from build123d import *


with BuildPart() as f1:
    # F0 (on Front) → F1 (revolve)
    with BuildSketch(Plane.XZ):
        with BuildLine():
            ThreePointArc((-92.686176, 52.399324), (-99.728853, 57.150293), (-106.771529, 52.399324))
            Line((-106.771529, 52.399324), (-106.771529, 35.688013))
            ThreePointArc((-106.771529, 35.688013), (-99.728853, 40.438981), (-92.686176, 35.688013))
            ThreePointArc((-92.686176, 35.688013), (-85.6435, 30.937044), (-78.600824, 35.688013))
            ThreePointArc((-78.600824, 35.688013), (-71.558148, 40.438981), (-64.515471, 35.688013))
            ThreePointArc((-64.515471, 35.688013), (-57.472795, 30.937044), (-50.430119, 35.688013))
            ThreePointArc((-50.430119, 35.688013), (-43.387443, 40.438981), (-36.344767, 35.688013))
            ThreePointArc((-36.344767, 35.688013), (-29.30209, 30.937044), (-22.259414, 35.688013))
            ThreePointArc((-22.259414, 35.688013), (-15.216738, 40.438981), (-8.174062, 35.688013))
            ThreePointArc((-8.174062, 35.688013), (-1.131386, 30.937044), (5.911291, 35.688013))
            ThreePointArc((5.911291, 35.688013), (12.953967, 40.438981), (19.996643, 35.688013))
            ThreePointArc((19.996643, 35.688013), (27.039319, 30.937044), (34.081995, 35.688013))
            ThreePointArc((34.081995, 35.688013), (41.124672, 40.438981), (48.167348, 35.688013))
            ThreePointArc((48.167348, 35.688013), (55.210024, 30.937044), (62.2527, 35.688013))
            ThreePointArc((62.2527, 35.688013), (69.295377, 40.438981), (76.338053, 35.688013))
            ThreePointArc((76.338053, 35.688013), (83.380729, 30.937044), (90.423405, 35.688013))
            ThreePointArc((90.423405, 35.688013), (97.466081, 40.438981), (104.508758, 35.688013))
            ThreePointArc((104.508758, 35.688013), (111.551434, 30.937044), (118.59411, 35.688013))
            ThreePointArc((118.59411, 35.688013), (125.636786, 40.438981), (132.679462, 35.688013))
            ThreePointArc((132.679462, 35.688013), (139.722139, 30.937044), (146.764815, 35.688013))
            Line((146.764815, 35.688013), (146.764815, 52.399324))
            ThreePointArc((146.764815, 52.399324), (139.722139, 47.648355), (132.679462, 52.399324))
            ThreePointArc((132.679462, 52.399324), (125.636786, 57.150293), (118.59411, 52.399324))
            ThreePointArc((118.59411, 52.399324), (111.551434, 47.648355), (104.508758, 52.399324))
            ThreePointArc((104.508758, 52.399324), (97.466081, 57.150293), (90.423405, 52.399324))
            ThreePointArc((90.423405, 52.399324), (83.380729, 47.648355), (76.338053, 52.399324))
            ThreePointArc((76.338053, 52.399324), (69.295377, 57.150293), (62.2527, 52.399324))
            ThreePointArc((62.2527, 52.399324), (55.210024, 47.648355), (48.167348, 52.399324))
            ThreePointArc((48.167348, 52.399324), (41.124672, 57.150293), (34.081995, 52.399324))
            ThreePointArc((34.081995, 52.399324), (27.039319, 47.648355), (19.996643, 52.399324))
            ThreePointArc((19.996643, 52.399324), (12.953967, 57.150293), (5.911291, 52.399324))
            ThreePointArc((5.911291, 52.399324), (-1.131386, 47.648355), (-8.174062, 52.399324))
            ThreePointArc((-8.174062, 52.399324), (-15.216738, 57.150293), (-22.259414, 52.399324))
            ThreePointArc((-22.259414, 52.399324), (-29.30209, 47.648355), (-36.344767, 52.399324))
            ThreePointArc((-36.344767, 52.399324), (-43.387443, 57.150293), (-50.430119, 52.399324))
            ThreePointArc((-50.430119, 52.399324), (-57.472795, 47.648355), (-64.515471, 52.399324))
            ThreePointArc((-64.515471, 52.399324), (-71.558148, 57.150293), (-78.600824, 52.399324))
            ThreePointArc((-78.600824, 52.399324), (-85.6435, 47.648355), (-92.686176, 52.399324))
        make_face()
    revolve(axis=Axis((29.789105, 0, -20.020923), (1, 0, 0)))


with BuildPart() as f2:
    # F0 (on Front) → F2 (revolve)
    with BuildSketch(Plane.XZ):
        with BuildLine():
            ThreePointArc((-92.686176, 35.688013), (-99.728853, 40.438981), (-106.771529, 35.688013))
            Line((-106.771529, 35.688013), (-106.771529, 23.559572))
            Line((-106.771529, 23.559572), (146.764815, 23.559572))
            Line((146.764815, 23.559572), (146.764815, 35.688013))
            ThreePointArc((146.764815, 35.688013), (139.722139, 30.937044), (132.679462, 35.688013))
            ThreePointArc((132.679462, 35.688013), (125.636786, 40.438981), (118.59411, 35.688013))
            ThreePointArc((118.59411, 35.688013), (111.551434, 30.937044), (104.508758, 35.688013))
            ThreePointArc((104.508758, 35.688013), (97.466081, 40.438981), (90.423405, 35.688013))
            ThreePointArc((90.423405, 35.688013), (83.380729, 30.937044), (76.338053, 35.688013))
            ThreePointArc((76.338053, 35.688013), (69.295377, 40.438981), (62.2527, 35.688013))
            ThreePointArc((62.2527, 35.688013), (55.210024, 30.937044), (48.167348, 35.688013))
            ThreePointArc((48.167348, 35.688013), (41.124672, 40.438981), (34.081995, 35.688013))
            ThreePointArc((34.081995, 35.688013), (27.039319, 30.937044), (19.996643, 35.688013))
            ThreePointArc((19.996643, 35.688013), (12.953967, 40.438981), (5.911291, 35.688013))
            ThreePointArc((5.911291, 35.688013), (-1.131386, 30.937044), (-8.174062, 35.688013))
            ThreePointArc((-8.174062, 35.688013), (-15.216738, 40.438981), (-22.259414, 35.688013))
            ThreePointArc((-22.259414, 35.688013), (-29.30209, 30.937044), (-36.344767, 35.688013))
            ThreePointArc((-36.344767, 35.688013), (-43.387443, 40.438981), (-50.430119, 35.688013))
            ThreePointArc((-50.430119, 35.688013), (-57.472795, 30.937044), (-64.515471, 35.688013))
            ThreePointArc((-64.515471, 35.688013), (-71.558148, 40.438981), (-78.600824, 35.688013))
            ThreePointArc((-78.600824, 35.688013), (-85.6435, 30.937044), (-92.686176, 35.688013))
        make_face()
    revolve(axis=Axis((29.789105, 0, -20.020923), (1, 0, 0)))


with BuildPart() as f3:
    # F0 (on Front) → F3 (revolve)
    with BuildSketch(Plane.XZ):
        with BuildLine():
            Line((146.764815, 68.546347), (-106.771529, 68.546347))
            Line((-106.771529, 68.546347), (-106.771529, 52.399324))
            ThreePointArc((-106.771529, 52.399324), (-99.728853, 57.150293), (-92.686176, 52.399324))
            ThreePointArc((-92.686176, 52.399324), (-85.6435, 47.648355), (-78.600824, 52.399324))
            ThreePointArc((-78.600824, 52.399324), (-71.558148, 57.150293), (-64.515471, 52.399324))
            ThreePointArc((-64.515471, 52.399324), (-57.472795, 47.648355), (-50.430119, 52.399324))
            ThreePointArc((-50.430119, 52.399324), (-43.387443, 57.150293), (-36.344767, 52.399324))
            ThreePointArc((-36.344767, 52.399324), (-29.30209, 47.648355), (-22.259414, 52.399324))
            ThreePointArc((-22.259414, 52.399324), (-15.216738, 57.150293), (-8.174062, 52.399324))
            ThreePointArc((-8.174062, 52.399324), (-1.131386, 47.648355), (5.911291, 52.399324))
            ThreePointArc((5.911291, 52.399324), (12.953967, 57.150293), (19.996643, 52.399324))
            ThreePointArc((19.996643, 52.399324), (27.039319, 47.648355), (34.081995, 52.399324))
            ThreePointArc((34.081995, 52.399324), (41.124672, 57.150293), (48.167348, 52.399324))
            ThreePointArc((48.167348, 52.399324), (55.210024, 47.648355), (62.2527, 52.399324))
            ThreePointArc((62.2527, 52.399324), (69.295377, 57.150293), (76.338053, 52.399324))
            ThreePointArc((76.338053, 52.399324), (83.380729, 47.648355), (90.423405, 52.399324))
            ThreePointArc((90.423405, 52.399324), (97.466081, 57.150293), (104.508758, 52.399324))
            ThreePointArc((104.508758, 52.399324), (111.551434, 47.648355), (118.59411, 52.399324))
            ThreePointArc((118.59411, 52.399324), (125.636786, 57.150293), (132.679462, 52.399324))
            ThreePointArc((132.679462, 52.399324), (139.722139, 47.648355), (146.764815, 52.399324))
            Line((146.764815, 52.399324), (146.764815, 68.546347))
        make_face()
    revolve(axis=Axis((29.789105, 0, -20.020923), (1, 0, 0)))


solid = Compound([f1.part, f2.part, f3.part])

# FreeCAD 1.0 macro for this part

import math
import FreeCAD as App
import Part
import Sketcher
from FreeCAD import Vector
Q = App.Units.Quantity

doc = App.newDocument("Part")
body = doc.addObject("PartDesign::Body", "Body")

# Sketch on XZ plane
sketch1 = doc.addObject("Sketcher::SketchObject", "Sketch")
body.addObject(sketch1)
sketch1.AttachmentSupport = (doc.XZ_Plane, [""])
sketch1.MapMode = "FlatFace"
sketch1.addGeometry([
    Part.ArcOfCircle(Part.Circle(Vector(-100, 50, 0), Vector(0, 0, 1), 8), math.radians(22), math.radians(158)),  # 0
    Part.LineSegment(Vector(-107, 52, 0), Vector(-107, 36, 0)),  # 1
    Part.ArcOfCircle(Part.Circle(Vector(-100, 33, 0), Vector(0, 0, 1), 8), math.radians(22), math.radians(158)),  # 2
    Part.ArcOfCircle(Part.Circle(Vector(-86, 39, 0), Vector(0, 0, 1), 8), math.radians(-158), math.radians(-22)),  # 3
    Part.ArcOfCircle(Part.Circle(Vector(-72, 33, 0), Vector(0, 0, 1), 8), math.radians(22), math.radians(158)),  # 4
    Part.ArcOfCircle(Part.Circle(Vector(-57, 39, 0), Vector(0, 0, 1), 8), math.radians(-158), math.radians(-22)),  # 5
    Part.ArcOfCircle(Part.Circle(Vector(-43, 33, 0), Vector(0, 0, 1), 8), math.radians(22), math.radians(158)),  # 6
    Part.ArcOfCircle(Part.Circle(Vector(-29, 39, 0), Vector(0, 0, 1), 8), math.radians(-158), math.radians(-22)),  # 7
    Part.ArcOfCircle(Part.Circle(Vector(-15, 33, 0), Vector(0, 0, 1), 8), math.radians(22), math.radians(158)),  # 8
    Part.ArcOfCircle(Part.Circle(Vector(-1, 39, 0), Vector(0, 0, 1), 8), math.radians(-158), math.radians(-22)),  # 9
    Part.ArcOfCircle(Part.Circle(Vector(13, 33, 0), Vector(0, 0, 1), 8), math.radians(22), math.radians(158)),  # 10
    Part.ArcOfCircle(Part.Circle(Vector(27, 39, 0), Vector(0, 0, 1), 8), math.radians(-158), math.radians(-22)),  # 11
    Part.ArcOfCircle(Part.Circle(Vector(41, 33, 0), Vector(0, 0, 1), 8), math.radians(22), math.radians(158)),  # 12
    Part.ArcOfCircle(Part.Circle(Vector(55, 39, 0), Vector(0, 0, 1), 8), math.radians(-158), math.radians(-22)),  # 13
    Part.ArcOfCircle(Part.Circle(Vector(69, 33, 0), Vector(0, 0, 1), 8), math.radians(22), math.radians(158)),  # 14
    Part.ArcOfCircle(Part.Circle(Vector(83, 39, 0), Vector(0, 0, 1), 8), math.radians(-158), math.radians(-22)),  # 15
    Part.ArcOfCircle(Part.Circle(Vector(97, 33, 0), Vector(0, 0, 1), 8), math.radians(22), math.radians(158)),  # 16
    Part.ArcOfCircle(Part.Circle(Vector(112, 39, 0), Vector(0, 0, 1), 8), math.radians(-158), math.radians(-22)),  # 17
    Part.ArcOfCircle(Part.Circle(Vector(126, 33, 0), Vector(0, 0, 1), 8), math.radians(22), math.radians(158)),  # 18
    Part.ArcOfCircle(Part.Circle(Vector(140, 39, 0), Vector(0, 0, 1), 8), math.radians(-158), math.radians(-22)),  # 19
    Part.LineSegment(Vector(147, 36, 0), Vector(147, 52, 0)),  # 20
    Part.ArcOfCircle(Part.Circle(Vector(140, 55, 0), Vector(0, 0, 1), 8), math.radians(-158), math.radians(-22)),  # 21
    Part.ArcOfCircle(Part.Circle(Vector(126, 50, 0), Vector(0, 0, 1), 8), math.radians(22), math.radians(158)),  # 22
    Part.ArcOfCircle(Part.Circle(Vector(112, 55, 0), Vector(0, 0, 1), 8), math.radians(-158), math.radians(-22)),  # 23
    Part.ArcOfCircle(Part.Circle(Vector(97, 50, 0), Vector(0, 0, 1), 8), math.radians(22), math.radians(158)),  # 24
    Part.ArcOfCircle(Part.Circle(Vector(83, 55, 0), Vector(0, 0, 1), 8), math.radians(-158), math.radians(-22)),  # 25
    Part.ArcOfCircle(Part.Circle(Vector(69, 50, 0), Vector(0, 0, 1), 8), math.radians(22), math.radians(158)),  # 26
    Part.ArcOfCircle(Part.Circle(Vector(55, 55, 0), Vector(0, 0, 1), 8), math.radians(-158), math.radians(-22)),  # 27
    Part.ArcOfCircle(Part.Circle(Vector(41, 50, 0), Vector(0, 0, 1), 8), math.radians(22), math.radians(158)),  # 28
    Part.ArcOfCircle(Part.Circle(Vector(27, 55, 0), Vector(0, 0, 1), 8), math.radians(-158), math.radians(-22)),  # 29
    Part.ArcOfCircle(Part.Circle(Vector(13, 50, 0), Vector(0, 0, 1), 8), math.radians(22), math.radians(158)),  # 30
    Part.ArcOfCircle(Part.Circle(Vector(-1, 55, 0), Vector(0, 0, 1), 8), math.radians(-158), math.radians(-22)),  # 31
    Part.ArcOfCircle(Part.Circle(Vector(-15, 50, 0), Vector(0, 0, 1), 8), math.radians(22), math.radians(158)),  # 32
    Part.ArcOfCircle(Part.Circle(Vector(-29, 55, 0), Vector(0, 0, 1), 8), math.radians(-158), math.radians(-22)),  # 33
    Part.ArcOfCircle(Part.Circle(Vector(-43, 50, 0), Vector(0, 0, 1), 8), math.radians(22), math.radians(158)),  # 34
    Part.ArcOfCircle(Part.Circle(Vector(-57, 55, 0), Vector(0, 0, 1), 8), math.radians(-158), math.radians(-22)),  # 35
    Part.ArcOfCircle(Part.Circle(Vector(-72, 50, 0), Vector(0, 0, 1), 8), math.radians(22), math.radians(158)),  # 36
    Part.ArcOfCircle(Part.Circle(Vector(-86, 55, 0), Vector(0, 0, 1), 8), math.radians(-158), math.radians(-22)),  # 37
], False)
sketch1.addGeometry(Part.LineSegment(Vector(-107, -20, 0), Vector(147, -20, 0)), True)  # axis
sketch1.addConstraint([
    Sketcher.Constraint("Coincident", 0, 2, 1, 1),
    Sketcher.Constraint("Coincident", 1, 2, 2, 2),
    Sketcher.Constraint("Tangent", 2, 1, 3, 1),
    Sketcher.Constraint("Tangent", 3, 2, 4, 2),
    Sketcher.Constraint("Tangent", 4, 1, 5, 1),
    Sketcher.Constraint("Tangent", 5, 2, 6, 2),
    Sketcher.Constraint("Tangent", 6, 1, 7, 1),
    Sketcher.Constraint("Tangent", 7, 2, 8, 2),
    Sketcher.Constraint("Tangent", 8, 1, 9, 1),
    Sketcher.Constraint("Tangent", 9, 2, 10, 2),
    Sketcher.Constraint("Tangent", 10, 1, 11, 1),
    Sketcher.Constraint("Tangent", 11, 2, 12, 2),
    Sketcher.Constraint("Tangent", 12, 1, 13, 1),
    Sketcher.Constraint("Tangent", 13, 2, 14, 2),
    Sketcher.Constraint("Tangent", 14, 1, 15, 1),
    Sketcher.Constraint("Tangent", 15, 2, 16, 2),
    Sketcher.Constraint("Tangent", 16, 1, 17, 1),
    Sketcher.Constraint("Tangent", 17, 2, 18, 2),
    Sketcher.Constraint("Tangent", 18, 1, 19, 1),
    Sketcher.Constraint("Coincident", 19, 2, 20, 1),
    Sketcher.Constraint("Coincident", 20, 2, 21, 2),
    Sketcher.Constraint("Tangent", 21, 1, 22, 1),
    Sketcher.Constraint("Tangent", 22, 2, 23, 2),
    Sketcher.Constraint("Tangent", 23, 1, 24, 1),
    Sketcher.Constraint("Tangent", 24, 2, 25, 2),
    Sketcher.Constraint("Tangent", 25, 1, 26, 1),
    Sketcher.Constraint("Tangent", 26, 2, 27, 2),
    Sketcher.Constraint("Tangent", 27, 1, 28, 1),
    Sketcher.Constraint("Tangent", 28, 2, 29, 2),
    Sketcher.Constraint("Tangent", 29, 1, 30, 1),
    Sketcher.Constraint("Tangent", 30, 2, 31, 2),
    Sketcher.Constraint("Tangent", 31, 1, 32, 1),
    Sketcher.Constraint("Tangent", 32, 2, 33, 2),
    Sketcher.Constraint("Tangent", 33, 1, 34, 1),
    Sketcher.Constraint("Tangent", 34, 2, 35, 2),
    Sketcher.Constraint("Tangent", 35, 1, 36, 1),
    Sketcher.Constraint("Tangent", 36, 2, 37, 2),
    Sketcher.Constraint("Tangent", 37, 1, 0, 1),
    Sketcher.Constraint("Vertical", 1),
    Sketcher.Constraint("Vertical", 20),
    Sketcher.Constraint("Horizontal", 38),
    Sketcher.Constraint("Equal", 0, 2),
    Sketcher.Constraint("Equal", 2, 3),
    Sketcher.Constraint("Equal", 3, 4),
    Sketcher.Constraint("Equal", 4, 5),
    Sketcher.Constraint("Equal", 5, 6),
    Sketcher.Constraint("Equal", 6, 7),
    Sketcher.Constraint("Equal", 7, 8),
    Sketcher.Constraint("Equal", 8, 9),
    Sketcher.Constraint("Equal", 9, 10),
    Sketcher.Constraint("Equal", 10, 11),
    Sketcher.Constraint("Equal", 11, 12),
    Sketcher.Constraint("Equal", 12, 13),
    Sketcher.Constraint("Equal", 13, 14),
    Sketcher.Constraint("Equal", 14, 15),
    Sketcher.Constraint("Equal", 15, 16),
    Sketcher.Constraint("Equal", 16, 17),
    Sketcher.Constraint("Equal", 17, 18),
    Sketcher.Constraint("Equal", 18, 19),
    Sketcher.Constraint("Equal", 19, 21),
    Sketcher.Constraint("Equal", 21, 22),
    Sketcher.Constraint("Equal", 22, 23),
    Sketcher.Constraint("Equal", 23, 24),
    Sketcher.Constraint("Equal", 24, 25),
    Sketcher.Constraint("Equal", 25, 26),
    Sketcher.Constraint("Equal", 26, 27),
    Sketcher.Constraint("Equal", 27, 28),
    Sketcher.Constraint("Equal", 28, 29),
    Sketcher.Constraint("Equal", 29, 30),
    Sketcher.Constraint("Equal", 30, 31),
    Sketcher.Constraint("Equal", 31, 32),
    Sketcher.Constraint("Equal", 32, 33),
    Sketcher.Constraint("Equal", 33, 34),
    Sketcher.Constraint("Equal", 34, 35),
    Sketcher.Constraint("Equal", 35, 36),
    Sketcher.Constraint("Equal", 36, 37),
    Sketcher.Constraint("Horizontal", 2, 3, 4, 3),
    Sketcher.Constraint("Horizontal", 3, 3, 5, 3),
    Sketcher.Constraint("Horizontal", 4, 3, 6, 3),
    Sketcher.Constraint("Horizontal", 5, 3, 7, 3),
    Sketcher.Constraint("Horizontal", 6, 3, 8, 3),
    Sketcher.Constraint("Horizontal", 7, 3, 9, 3),
    Sketcher.Constraint("Horizontal", 8, 3, 10, 3),
    Sketcher.Constraint("Horizontal", 9, 3, 11, 3),
    Sketcher.Constraint("Horizontal", 10, 3, 12, 3),
    Sketcher.Constraint("Horizontal", 11, 3, 13, 3),
    Sketcher.Constraint("Horizontal", 12, 3, 14, 3),
    Sketcher.Constraint("Horizontal", 13, 3, 15, 3),
    Sketcher.Constraint("Horizontal", 14, 3, 16, 3),
    Sketcher.Constraint("Horizontal", 15, 3, 17, 3),
    Sketcher.Constraint("Horizontal", 16, 3, 18, 3),
    Sketcher.Constraint("Horizontal", 17, 3, 19, 3),
    Sketcher.Constraint("Horizontal", 0, 3, 22, 3),
    Sketcher.Constraint("Horizontal", 21, 3, 23, 3),
    Sketcher.Constraint("Horizontal", 22, 3, 24, 3),
    Sketcher.Constraint("Horizontal", 23, 3, 25, 3),
    Sketcher.Constraint("Horizontal", 24, 3, 26, 3),
    Sketcher.Constraint("Horizontal", 25, 3, 27, 3),
    Sketcher.Constraint("Horizontal", 26, 3, 28, 3),
    Sketcher.Constraint("Horizontal", 27, 3, 29, 3),
    Sketcher.Constraint("Horizontal", 28, 3, 30, 3),
    Sketcher.Constraint("Horizontal", 29, 3, 31, 3),
    Sketcher.Constraint("Horizontal", 30, 3, 32, 3),
    Sketcher.Constraint("Horizontal", 31, 3, 33, 3),
    Sketcher.Constraint("Horizontal", 32, 3, 34, 3),
    Sketcher.Constraint("Horizontal", 33, 3, 35, 3),
    Sketcher.Constraint("Horizontal", 34, 3, 36, 3),
    Sketcher.Constraint("Horizontal", 35, 3, 37, 3),
    Sketcher.Constraint("Horizontal", 1, 2, 2, 1),
    Sketcher.Constraint("Horizontal", 18, 1, 19, 2),
    Sketcher.Constraint("Horizontal", 0, 2, 20, 2),
    Sketcher.Constraint("Horizontal", 20, 2, 21, 1),
    Sketcher.Constraint("Vertical", 1, 2, 38, 1),
    Sketcher.Constraint("Vertical", 20, 2, 38, 2),
    Sketcher.Constraint("Radius", 2, Q("7.595398 mm")),
    Sketcher.Constraint("DistanceY", 1, 2, 1, 1, Q("16.711311 mm")),
    Sketcher.Constraint("DistanceX", 3, 3, -1, 1, Q("85.6435 mm")),
    Sketcher.Constraint("DistanceX", -1, 1, 13, 2, Q("62.2527 mm")),
    Sketcher.Constraint("DistanceY", -1, 1, 3, 3, Q("38.532441 mm")),
    Sketcher.Constraint("DistanceY", 38, 1, -1, 1, Q("20.020923 mm")),
])
revolution = doc.addObject("PartDesign::Revolution", "Revolution")
body.addObject(revolution)
revolution.Profile = sketch1
revolution.ReferenceAxis = (sketch1, ["Axis0"])
revolution.Angle = 360
body2 = doc.addObject("PartDesign::Body", "Body001")

# Sketch on XZ plane
sketch2 = doc.addObject("Sketcher::SketchObject", "Sketch001")
body2.addObject(sketch2)
sketch2.AttachmentSupport = (doc.getObject("XZ_Plane001"), [""])
sketch2.MapMode = "FlatFace"
sketch2.addGeometry([
    Part.ArcOfCircle(Part.Circle(Vector(-100, 33, 0), Vector(0, 0, 1), 8), math.radians(22), math.radians(158)),  # 0
    Part.LineSegment(Vector(-107, 36, 0), Vector(-107, 24, 0)),  # 1
    Part.LineSegment(Vector(-107, 24, 0), Vector(147, 24, 0)),  # 2
    Part.LineSegment(Vector(147, 24, 0), Vector(147, 36, 0)),  # 3
    Part.ArcOfCircle(Part.Circle(Vector(140, 39, 0), Vector(0, 0, 1), 8), math.radians(-158), math.radians(-22)),  # 4
    Part.ArcOfCircle(Part.Circle(Vector(126, 33, 0), Vector(0, 0, 1), 8), math.radians(22), math.radians(158)),  # 5
    Part.ArcOfCircle(Part.Circle(Vector(112, 39, 0), Vector(0, 0, 1), 8), math.radians(-158), math.radians(-22)),  # 6
    Part.ArcOfCircle(Part.Circle(Vector(97, 33, 0), Vector(0, 0, 1), 8), math.radians(22), math.radians(158)),  # 7
    Part.ArcOfCircle(Part.Circle(Vector(83, 39, 0), Vector(0, 0, 1), 8), math.radians(-158), math.radians(-22)),  # 8
    Part.ArcOfCircle(Part.Circle(Vector(69, 33, 0), Vector(0, 0, 1), 8), math.radians(22), math.radians(158)),  # 9
    Part.ArcOfCircle(Part.Circle(Vector(55, 39, 0), Vector(0, 0, 1), 8), math.radians(-158), math.radians(-22)),  # 10
    Part.ArcOfCircle(Part.Circle(Vector(41, 33, 0), Vector(0, 0, 1), 8), math.radians(22), math.radians(158)),  # 11
    Part.ArcOfCircle(Part.Circle(Vector(27, 39, 0), Vector(0, 0, 1), 8), math.radians(-158), math.radians(-22)),  # 12
    Part.ArcOfCircle(Part.Circle(Vector(13, 33, 0), Vector(0, 0, 1), 8), math.radians(22), math.radians(158)),  # 13
    Part.ArcOfCircle(Part.Circle(Vector(-1, 39, 0), Vector(0, 0, 1), 8), math.radians(-158), math.radians(-22)),  # 14
    Part.ArcOfCircle(Part.Circle(Vector(-15, 33, 0), Vector(0, 0, 1), 8), math.radians(22), math.radians(158)),  # 15
    Part.ArcOfCircle(Part.Circle(Vector(-29, 39, 0), Vector(0, 0, 1), 8), math.radians(-158), math.radians(-22)),  # 16
    Part.ArcOfCircle(Part.Circle(Vector(-43, 33, 0), Vector(0, 0, 1), 8), math.radians(22), math.radians(158)),  # 17
    Part.ArcOfCircle(Part.Circle(Vector(-57, 39, 0), Vector(0, 0, 1), 8), math.radians(-158), math.radians(-22)),  # 18
    Part.ArcOfCircle(Part.Circle(Vector(-72, 33, 0), Vector(0, 0, 1), 8), math.radians(22), math.radians(158)),  # 19
    Part.ArcOfCircle(Part.Circle(Vector(-86, 39, 0), Vector(0, 0, 1), 8), math.radians(-158), math.radians(-22)),  # 20
], False)
sketch2.addGeometry(Part.LineSegment(Vector(-107, -20, 0), Vector(147, -20, 0)), True)  # axis
sketch2.addConstraint([
    Sketcher.Constraint("Coincident", 0, 2, 1, 1),
    Sketcher.Constraint("Coincident", 1, 2, 2, 1),
    Sketcher.Constraint("Coincident", 2, 2, 3, 1),
    Sketcher.Constraint("Coincident", 3, 2, 4, 2),
    Sketcher.Constraint("Tangent", 4, 1, 5, 1),
    Sketcher.Constraint("Tangent", 5, 2, 6, 2),
    Sketcher.Constraint("Tangent", 6, 1, 7, 1),
    Sketcher.Constraint("Tangent", 7, 2, 8, 2),
    Sketcher.Constraint("Tangent", 8, 1, 9, 1),
    Sketcher.Constraint("Tangent", 9, 2, 10, 2),
    Sketcher.Constraint("Tangent", 10, 1, 11, 1),
    Sketcher.Constraint("Tangent", 11, 2, 12, 2),
    Sketcher.Constraint("Tangent", 12, 1, 13, 1),
    Sketcher.Constraint("Tangent", 13, 2, 14, 2),
    Sketcher.Constraint("Tangent", 14, 1, 15, 1),
    Sketcher.Constraint("Tangent", 15, 2, 16, 2),
    Sketcher.Constraint("Tangent", 16, 1, 17, 1),
    Sketcher.Constraint("Tangent", 17, 2, 18, 2),
    Sketcher.Constraint("Tangent", 18, 1, 19, 1),
    Sketcher.Constraint("Tangent", 19, 2, 20, 2),
    Sketcher.Constraint("Tangent", 20, 1, 0, 1),
    Sketcher.Constraint("Vertical", 1),
    Sketcher.Constraint("Horizontal", 2),
    Sketcher.Constraint("Vertical", 3),
    Sketcher.Constraint("Horizontal", 21),
    Sketcher.Constraint("Equal", 0, 4),
    Sketcher.Constraint("Equal", 4, 5),
    Sketcher.Constraint("Equal", 5, 6),
    Sketcher.Constraint("Equal", 6, 7),
    Sketcher.Constraint("Equal", 7, 8),
    Sketcher.Constraint("Equal", 8, 9),
    Sketcher.Constraint("Equal", 9, 10),
    Sketcher.Constraint("Equal", 10, 11),
    Sketcher.Constraint("Equal", 11, 12),
    Sketcher.Constraint("Equal", 12, 13),
    Sketcher.Constraint("Equal", 13, 14),
    Sketcher.Constraint("Equal", 14, 15),
    Sketcher.Constraint("Equal", 15, 16),
    Sketcher.Constraint("Equal", 16, 17),
    Sketcher.Constraint("Equal", 17, 18),
    Sketcher.Constraint("Equal", 18, 19),
    Sketcher.Constraint("Equal", 19, 20),
    Sketcher.Constraint("Horizontal", 0, 3, 5, 3),
    Sketcher.Constraint("Horizontal", 4, 3, 6, 3),
    Sketcher.Constraint("Horizontal", 5, 3, 7, 3),
    Sketcher.Constraint("Horizontal", 6, 3, 8, 3),
    Sketcher.Constraint("Horizontal", 7, 3, 9, 3),
    Sketcher.Constraint("Horizontal", 8, 3, 10, 3),
    Sketcher.Constraint("Horizontal", 9, 3, 11, 3),
    Sketcher.Constraint("Horizontal", 10, 3, 12, 3),
    Sketcher.Constraint("Horizontal", 11, 3, 13, 3),
    Sketcher.Constraint("Horizontal", 12, 3, 14, 3),
    Sketcher.Constraint("Horizontal", 13, 3, 15, 3),
    Sketcher.Constraint("Horizontal", 14, 3, 16, 3),
    Sketcher.Constraint("Horizontal", 15, 3, 17, 3),
    Sketcher.Constraint("Horizontal", 16, 3, 18, 3),
    Sketcher.Constraint("Horizontal", 17, 3, 19, 3),
    Sketcher.Constraint("Horizontal", 18, 3, 20, 3),
    Sketcher.Constraint("Horizontal", 0, 2, 3, 2),
    Sketcher.Constraint("Horizontal", 3, 2, 4, 1),
    Sketcher.Constraint("Vertical", 1, 2, 21, 1),
    Sketcher.Constraint("Vertical", 3, 2, 21, 2),
    Sketcher.Constraint("Radius", 0, Q("7.595398 mm")),
    Sketcher.Constraint("DistanceY", 1, 2, 1, 1, Q("12.128441 mm")),
    Sketcher.Constraint("DistanceX", 20, 3, -1, 1, Q("85.6435 mm")),
    Sketcher.Constraint("DistanceX", -1, 1, 9, 2, Q("62.2527 mm")),
    Sketcher.Constraint("DistanceY", -1, 1, 4, 3, Q("38.532442 mm")),
    Sketcher.Constraint("DistanceY", 21, 1, -1, 1, Q("20.020923 mm")),
])
revolution2 = doc.addObject("PartDesign::Revolution", "Revolution001")
body2.addObject(revolution2)
revolution2.Profile = sketch2
revolution2.ReferenceAxis = (sketch2, ["Axis0"])
revolution2.Angle = 360
body3 = doc.addObject("PartDesign::Body", "Body002")

# Sketch on XZ plane
sketch3 = doc.addObject("Sketcher::SketchObject", "Sketch002")
body3.addObject(sketch3)
sketch3.AttachmentSupport = (doc.getObject("XZ_Plane002"), [""])
sketch3.MapMode = "FlatFace"
sketch3.addGeometry([
    Part.LineSegment(Vector(147, 69, 0), Vector(-107, 69, 0)),  # 0
    Part.LineSegment(Vector(-107, 69, 0), Vector(-107, 52, 0)),  # 1
    Part.ArcOfCircle(Part.Circle(Vector(-100, 50, 0), Vector(0, 0, 1), 8), math.radians(22), math.radians(158)),  # 2
    Part.ArcOfCircle(Part.Circle(Vector(-86, 55, 0), Vector(0, 0, 1), 8), math.radians(-158), math.radians(-22)),  # 3
    Part.ArcOfCircle(Part.Circle(Vector(-72, 50, 0), Vector(0, 0, 1), 8), math.radians(22), math.radians(158)),  # 4
    Part.ArcOfCircle(Part.Circle(Vector(-57, 55, 0), Vector(0, 0, 1), 8), math.radians(-158), math.radians(-22)),  # 5
    Part.ArcOfCircle(Part.Circle(Vector(-43, 50, 0), Vector(0, 0, 1), 8), math.radians(22), math.radians(158)),  # 6
    Part.ArcOfCircle(Part.Circle(Vector(-29, 55, 0), Vector(0, 0, 1), 8), math.radians(-158), math.radians(-22)),  # 7
    Part.ArcOfCircle(Part.Circle(Vector(-15, 50, 0), Vector(0, 0, 1), 8), math.radians(22), math.radians(158)),  # 8
    Part.ArcOfCircle(Part.Circle(Vector(-1, 55, 0), Vector(0, 0, 1), 8), math.radians(-158), math.radians(-22)),  # 9
    Part.ArcOfCircle(Part.Circle(Vector(13, 50, 0), Vector(0, 0, 1), 8), math.radians(22), math.radians(158)),  # 10
    Part.ArcOfCircle(Part.Circle(Vector(27, 55, 0), Vector(0, 0, 1), 8), math.radians(-158), math.radians(-22)),  # 11
    Part.ArcOfCircle(Part.Circle(Vector(41, 50, 0), Vector(0, 0, 1), 8), math.radians(22), math.radians(158)),  # 12
    Part.ArcOfCircle(Part.Circle(Vector(55, 55, 0), Vector(0, 0, 1), 8), math.radians(-158), math.radians(-22)),  # 13
    Part.ArcOfCircle(Part.Circle(Vector(69, 50, 0), Vector(0, 0, 1), 8), math.radians(22), math.radians(158)),  # 14
    Part.ArcOfCircle(Part.Circle(Vector(83, 55, 0), Vector(0, 0, 1), 8), math.radians(-158), math.radians(-22)),  # 15
    Part.ArcOfCircle(Part.Circle(Vector(97, 50, 0), Vector(0, 0, 1), 8), math.radians(22), math.radians(158)),  # 16
    Part.ArcOfCircle(Part.Circle(Vector(112, 55, 0), Vector(0, 0, 1), 8), math.radians(-158), math.radians(-22)),  # 17
    Part.ArcOfCircle(Part.Circle(Vector(126, 50, 0), Vector(0, 0, 1), 8), math.radians(22), math.radians(158)),  # 18
    Part.ArcOfCircle(Part.Circle(Vector(140, 55, 0), Vector(0, 0, 1), 8), math.radians(-158), math.radians(-22)),  # 19
    Part.LineSegment(Vector(147, 52, 0), Vector(147, 69, 0)),  # 20
], False)
sketch3.addGeometry(Part.LineSegment(Vector(-107, -20, 0), Vector(147, -20, 0)), True)  # axis
sketch3.addConstraint([
    Sketcher.Constraint("Coincident", 0, 2, 1, 1),
    Sketcher.Constraint("Coincident", 1, 2, 2, 2),
    Sketcher.Constraint("Tangent", 2, 1, 3, 1),
    Sketcher.Constraint("Tangent", 3, 2, 4, 2),
    Sketcher.Constraint("Tangent", 4, 1, 5, 1),
    Sketcher.Constraint("Tangent", 5, 2, 6, 2),
    Sketcher.Constraint("Tangent", 6, 1, 7, 1),
    Sketcher.Constraint("Tangent", 7, 2, 8, 2),
    Sketcher.Constraint("Tangent", 8, 1, 9, 1),
    Sketcher.Constraint("Tangent", 9, 2, 10, 2),
    Sketcher.Constraint("Tangent", 10, 1, 11, 1),
    Sketcher.Constraint("Tangent", 11, 2, 12, 2),
    Sketcher.Constraint("Tangent", 12, 1, 13, 1),
    Sketcher.Constraint("Tangent", 13, 2, 14, 2),
    Sketcher.Constraint("Tangent", 14, 1, 15, 1),
    Sketcher.Constraint("Tangent", 15, 2, 16, 2),
    Sketcher.Constraint("Tangent", 16, 1, 17, 1),
    Sketcher.Constraint("Tangent", 17, 2, 18, 2),
    Sketcher.Constraint("Tangent", 18, 1, 19, 1),
    Sketcher.Constraint("Coincident", 19, 2, 20, 1),
    Sketcher.Constraint("Coincident", 20, 2, 0, 1),
    Sketcher.Constraint("Horizontal", 0),
    Sketcher.Constraint("Vertical", 1),
    Sketcher.Constraint("Vertical", 20),
    Sketcher.Constraint("Horizontal", 21),
    Sketcher.Constraint("Equal", 2, 3),
    Sketcher.Constraint("Equal", 3, 4),
    Sketcher.Constraint("Equal", 4, 5),
    Sketcher.Constraint("Equal", 5, 6),
    Sketcher.Constraint("Equal", 6, 7),
    Sketcher.Constraint("Equal", 7, 8),
    Sketcher.Constraint("Equal", 8, 9),
    Sketcher.Constraint("Equal", 9, 10),
    Sketcher.Constraint("Equal", 10, 11),
    Sketcher.Constraint("Equal", 11, 12),
    Sketcher.Constraint("Equal", 12, 13),
    Sketcher.Constraint("Equal", 13, 14),
    Sketcher.Constraint("Equal", 14, 15),
    Sketcher.Constraint("Equal", 15, 16),
    Sketcher.Constraint("Equal", 16, 17),
    Sketcher.Constraint("Equal", 17, 18),
    Sketcher.Constraint("Equal", 18, 19),
    Sketcher.Constraint("Horizontal", 2, 3, 4, 3),
    Sketcher.Constraint("Horizontal", 3, 3, 5, 3),
    Sketcher.Constraint("Horizontal", 4, 3, 6, 3),
    Sketcher.Constraint("Horizontal", 5, 3, 7, 3),
    Sketcher.Constraint("Horizontal", 6, 3, 8, 3),
    Sketcher.Constraint("Horizontal", 7, 3, 9, 3),
    Sketcher.Constraint("Horizontal", 8, 3, 10, 3),
    Sketcher.Constraint("Horizontal", 9, 3, 11, 3),
    Sketcher.Constraint("Horizontal", 10, 3, 12, 3),
    Sketcher.Constraint("Horizontal", 11, 3, 13, 3),
    Sketcher.Constraint("Horizontal", 12, 3, 14, 3),
    Sketcher.Constraint("Horizontal", 13, 3, 15, 3),
    Sketcher.Constraint("Horizontal", 14, 3, 16, 3),
    Sketcher.Constraint("Horizontal", 15, 3, 17, 3),
    Sketcher.Constraint("Horizontal", 16, 3, 18, 3),
    Sketcher.Constraint("Horizontal", 17, 3, 19, 3),
    Sketcher.Constraint("Horizontal", 1, 2, 2, 1),
    Sketcher.Constraint("Horizontal", 18, 1, 19, 2),
    Sketcher.Constraint("Vertical", 1, 2, 21, 1),
    Sketcher.Constraint("Vertical", 20, 2, 21, 2),
    Sketcher.Constraint("Radius", 2, Q("7.595398 mm")),
    Sketcher.Constraint("DistanceX", 3, 3, -1, 1, Q("85.6435 mm")),
    Sketcher.Constraint("DistanceX", -1, 1, 13, 2, Q("62.2527 mm")),
    Sketcher.Constraint("DistanceY", 1, 2, 1, 1, Q("16.147023 mm")),
    Sketcher.Constraint("DistanceY", 21, 1, 2, 3, Q("69.575818 mm")),
    Sketcher.Constraint("DistanceY", -1, 1, 2, 3, Q("49.554895 mm")),
])
revolution3 = doc.addObject("PartDesign::Revolution", "Revolution002")
body3.addObject(revolution3)
revolution3.Profile = sketch3
revolution3.ReferenceAxis = (sketch3, ["Axis0"])
revolution3.Angle = 360

doc.recompute()
